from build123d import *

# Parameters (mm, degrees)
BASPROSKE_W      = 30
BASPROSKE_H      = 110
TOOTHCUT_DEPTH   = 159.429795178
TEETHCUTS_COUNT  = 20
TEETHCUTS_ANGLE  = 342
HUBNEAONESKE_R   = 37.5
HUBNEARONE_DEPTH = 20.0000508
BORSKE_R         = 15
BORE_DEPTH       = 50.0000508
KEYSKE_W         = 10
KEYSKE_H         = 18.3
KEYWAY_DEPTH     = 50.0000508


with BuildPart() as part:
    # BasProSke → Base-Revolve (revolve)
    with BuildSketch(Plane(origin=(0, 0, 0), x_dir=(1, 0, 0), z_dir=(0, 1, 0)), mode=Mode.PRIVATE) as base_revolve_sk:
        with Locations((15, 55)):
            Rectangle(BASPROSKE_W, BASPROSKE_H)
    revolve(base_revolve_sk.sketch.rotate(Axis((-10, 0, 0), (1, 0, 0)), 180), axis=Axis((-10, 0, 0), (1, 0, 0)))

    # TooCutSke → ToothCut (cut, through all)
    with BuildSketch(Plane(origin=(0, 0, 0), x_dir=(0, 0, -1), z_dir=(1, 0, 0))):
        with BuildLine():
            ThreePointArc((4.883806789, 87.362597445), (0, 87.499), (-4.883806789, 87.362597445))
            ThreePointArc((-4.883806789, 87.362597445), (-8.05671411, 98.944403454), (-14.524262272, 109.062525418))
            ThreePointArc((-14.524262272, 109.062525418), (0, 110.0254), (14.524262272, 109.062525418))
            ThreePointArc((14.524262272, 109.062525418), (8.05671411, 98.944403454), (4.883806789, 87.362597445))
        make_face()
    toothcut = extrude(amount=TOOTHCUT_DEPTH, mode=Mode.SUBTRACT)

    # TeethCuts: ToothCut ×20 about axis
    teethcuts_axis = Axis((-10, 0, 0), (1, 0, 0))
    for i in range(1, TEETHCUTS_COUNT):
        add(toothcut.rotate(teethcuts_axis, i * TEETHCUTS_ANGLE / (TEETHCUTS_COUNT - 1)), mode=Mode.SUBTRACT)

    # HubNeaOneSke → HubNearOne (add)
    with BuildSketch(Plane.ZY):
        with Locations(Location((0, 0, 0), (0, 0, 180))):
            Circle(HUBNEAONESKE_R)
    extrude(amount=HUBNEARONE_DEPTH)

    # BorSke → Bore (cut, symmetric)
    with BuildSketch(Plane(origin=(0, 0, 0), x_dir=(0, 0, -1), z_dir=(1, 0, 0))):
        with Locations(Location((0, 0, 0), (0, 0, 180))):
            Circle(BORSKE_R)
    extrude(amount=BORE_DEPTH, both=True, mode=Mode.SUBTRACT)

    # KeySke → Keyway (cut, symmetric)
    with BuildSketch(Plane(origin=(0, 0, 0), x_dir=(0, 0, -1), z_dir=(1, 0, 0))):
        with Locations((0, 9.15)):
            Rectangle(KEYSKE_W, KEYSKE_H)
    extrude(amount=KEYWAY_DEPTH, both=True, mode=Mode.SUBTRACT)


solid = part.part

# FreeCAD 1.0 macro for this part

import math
import FreeCAD as App
import Part
import Sketcher

V = App.Vector
Q = App.Units.Quantity


def add_polygon(sketch, points):
    """Adds a closed chain of lines whose ends are joined by coincident constraints."""
    first, n = sketch.GeometryCount, len(points)
    for a, b in zip(points, points[1:] + points[:1]):
        sketch.addGeometry(Part.LineSegment(App.Vector(*a, 0), App.Vector(*b, 0)), False)
    for i in range(n):
        sketch.addConstraint(Sketcher.Constraint("Coincident", first + i, 2, first + (i + 1) % n, 1))

doc = App.newDocument("Part")
params = doc.addObject("Spreadsheet::Sheet", "Params")
for row, (alias, value) in enumerate([
    ("sketch1_width", "30 mm"),
    ("sketch1_height", "110 mm"),
    ("revolution_angle", "360 deg"),
    ("sketch2_radius", "40 mm"),
    ("sketch3_diameter", "75 mm"),
    ("pad1_length", "20.000051 mm"),
    ("sketch4_diameter", "30 mm"),
    ("pocket2_length", "100.000102 mm"),
    ("sketch5_height", "10 mm"),
    ("sketch5_width", "18.3 mm"),
    ("pocket3_length", "100.000102 mm"),
], start=1):
    params.set(f"A{row}", alias)
    params.set(f"B{row}", "=" + value)
    params.setAlias(f"B{row}", alias)

body = doc.addObject("PartDesign::Body", "Body")

# Sketch on XZ plane
sketch1 = body.newObject("Sketcher::SketchObject", "Sketch")
sketch1.AttachmentSupport = (doc.getObject("XZ_Plane"), [""])
sketch1.MapMode = "FlatFace"
add_polygon(sketch1, [(0, -110), (0, 0), (30, 0), (30, -110)])  # lines 0-3
sketch1.addConstraint(Sketcher.Constraint("Vertical", 0))
sketch1.addConstraint(Sketcher.Constraint("Horizontal", 1))
sketch1.addConstraint(Sketcher.Constraint("Vertical", 2))
sketch1.addConstraint(Sketcher.Constraint("Horizontal", 3))
sketch1.addConstraint(Sketcher.Constraint("Coincident", 0, 2, -1, 1))
sketch1.addConstraint(Sketcher.Constraint("DistanceX", 1, 1, 1, 2, Q("30 mm")))
sketch1.addConstraint(Sketcher.Constraint("DistanceY", 0, 1, 0, 2, Q("110 mm")))
sketch1.setExpression("Constraints[9]", "Params.sketch1_width")
sketch1.setExpression("Constraints[10]", "Params.sketch1_height")
revolution = body.newObject("PartDesign::Revolution", "Revolution")
revolution.Profile = sketch1
revolution.ReferenceAxis = (sketch1, ["H_Axis"])
revolution.setExpression("Angle", "Params.revolution_angle")

# Sketch on YZ plane
sketch2 = body.newObject("Sketcher::SketchObject", "Sketch001")
sketch2.AttachmentSupport = (doc.getObject("YZ_Plane"), [""])
sketch2.MapMode = "FlatFace"
sketch2.addGeometry(Part.ArcOfCircle(Part.Circle(V(0, 0, 0), V(0, 0, 1), 87), math.radians(-3.2), math.radians(3.2)), False)
sketch2.addGeometry(Part.ArcOfCircle(Part.Circle(V(83, -45, 0), V(0, 0, 1), 40), math.radians(49), math.radians(83)), False)
sketch2.addGeometry(Part.ArcOfCircle(Part.Circle(V(0, 0, 0), V(0, 0, 1), 110), math.radians(-7.59), math.radians(7.59)), False)
sketch2.addGeometry(Part.ArcOfCircle(Part.Circle(V(83, 45, 0), V(0, 0, 1), 40), math.radians(-83), math.radians(-49)), False)
sketch2.addConstraint(Sketcher.Constraint("Coincident", 0, 1, 1, 2))
sketch2.addConstraint(Sketcher.Constraint("Coincident", 1, 1, 2, 1))
sketch2.addConstraint(Sketcher.Constraint("Coincident", 2, 2, 3, 2))
sketch2.addConstraint(Sketcher.Constraint("Coincident", 3, 1, 0, 2))
sketch2.addConstraint(Sketcher.Constraint("Coincident", 0, 3, -1, 1))
sketch2.addConstraint(Sketcher.Constraint("Coincident", 2, 3, -1, 1))
sketch2.addConstraint(Sketcher.Constraint("Equal", 1, 3))
sketch2.addConstraint(Sketcher.Constraint("Symmetric", 1, 3, 3, 3, -1))
sketch2.addConstraint(Sketcher.Constraint("Radius", 1, Q("40 mm")))
sketch2.addConstraint(Sketcher.Constraint("Radius", 0, Q("87.499 mm")))
sketch2.addConstraint(Sketcher.Constraint("Radius", 2, Q("110.0254 mm")))
sketch2.addConstraint(Sketcher.Constraint("DistanceY", 1, 3, 3, 3, Q("89.223299 mm")))
sketch2.addConstraint(Sketcher.Constraint("DistanceX", -1, 1, 1, 3, Q("82.704431 mm")))
sketch2.setExpression("Constraints[8]", "Params.sketch2_radius")
pocket1 = body.newObject("PartDesign::Pocket", "Pocket")
pocket1.Profile = sketch2
pocket1.Type = "ThroughAll"
pocket1.Reversed = True
doc.recompute()

polarpattern = body.newObject("PartDesign::PolarPattern", "PolarPattern")
polarpattern.Originals = [pocket1]
polarpattern.Axis = (doc.getObject("X_Axis"), [""])
polarpattern.Angle = 360
polarpattern.Occurrences = 20
body.Tip = polarpattern

# Sketch on YZ plane
sketch3 = body.newObject("Sketcher::SketchObject", "Sketch002")
sketch3.AttachmentSupport = (doc.getObject("YZ_Plane"), [""])
sketch3.MapMode = "FlatFace"
sketch3.addGeometry(Part.Circle(V(0, 0, 0), V(0, 0, 1), 38), False)
sketch3.addConstraint(Sketcher.Constraint("Coincident", 0, 3, -1, 1))
sketch3.addConstraint(Sketcher.Constraint("Diameter", 0, Q("75 mm")))
sketch3.setExpression("Constraints[1]", "Params.sketch3_diameter")
pad1 = body.newObject("PartDesign::Pad", "Pad")
pad1.Profile = sketch3
pad1.setExpression("Length", "Params.pad1_length")
pad1.Reversed = True

# Sketch on YZ plane
sketch4 = body.newObject("Sketcher::SketchObject", "Sketch003")
sketch4.AttachmentSupport = (doc.getObject("YZ_Plane"), [""])
sketch4.MapMode = "FlatFace"
sketch4.addGeometry(Part.Circle(V(0, 0, 0), V(0, 0, 1), 15), False)
sketch4.addConstraint(Sketcher.Constraint("Coincident", 0, 3, -1, 1))
sketch4.addConstraint(Sketcher.Constraint("Diameter", 0, Q("30 mm")))
sketch4.setExpression("Constraints[1]", "Params.sketch4_diameter")
pocket2 = body.newObject("PartDesign::Pocket", "Pocket001")
pocket2.Profile = sketch4
pocket2.setExpression("Length", "Params.pocket2_length")
pocket2.Midplane = True

# Sketch on YZ plane
sketch5 = body.newObject("Sketcher::SketchObject", "Sketch004")
sketch5.AttachmentSupport = (doc.getObject("YZ_Plane"), [""])
sketch5.MapMode = "FlatFace"
add_polygon(sketch5, [(18, 5), (0, 5), (0, -5), (18, -5)])  # lines 0-3
sketch5.addConstraint(Sketcher.Constraint("Horizontal", 0))
sketch5.addConstraint(Sketcher.Constraint("Vertical", 1))
sketch5.addConstraint(Sketcher.Constraint("Horizontal", 2))
sketch5.addConstraint(Sketcher.Constraint("Vertical", 3))
sketch5.addConstraint(Sketcher.Constraint("Symmetric", 0, 2, 1, 2, -1, 1))
sketch5.addConstraint(Sketcher.Constraint("DistanceY", 1, 2, 1, 1, Q("10 mm")))
sketch5.addConstraint(Sketcher.Constraint("DistanceX", 0, 2, 0, 1, Q("18.3 mm")))
sketch5.setExpression("Constraints[9]", "Params.sketch5_height")
sketch5.setExpression("Constraints[10]", "Params.sketch5_width")
pocket3 = body.newObject("PartDesign::Pocket", "Pocket002")
pocket3.Profile = sketch5
pocket3.setExpression("Length", "Params.pocket3_length")
pocket3.Midplane = True

doc.recompute()
